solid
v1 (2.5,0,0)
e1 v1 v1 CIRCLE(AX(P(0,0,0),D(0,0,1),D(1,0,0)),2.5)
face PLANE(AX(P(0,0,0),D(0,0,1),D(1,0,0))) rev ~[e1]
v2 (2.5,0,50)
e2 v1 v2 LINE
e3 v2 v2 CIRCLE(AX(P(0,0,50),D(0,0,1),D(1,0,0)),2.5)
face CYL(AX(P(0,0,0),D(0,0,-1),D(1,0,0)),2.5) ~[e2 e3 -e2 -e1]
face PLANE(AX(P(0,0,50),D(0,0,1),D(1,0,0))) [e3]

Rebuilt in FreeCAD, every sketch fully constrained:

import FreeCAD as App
import Part
import Sketcher

V = App.Vector

doc = App.newDocument("Part")
body = doc.addObject("PartDesign::Body", "Body")

# Sketch on XY plane
sketch1 = doc.addObject("Sketcher::SketchObject", "Sketch")
body.addObject(sketch1)
sketch1.AttachmentSupport = (doc.XY_Plane, [""])
sketch1.MapMode = "FlatFace"
sketch1.addGeometry(Part.Circle(V(0, 0, 0), V(0, 0, 1), 2.5), False)
sketch1.addConstraint(Sketcher.Constraint("Coincident", 0, 3, -1, 1))
sketch1.addConstraint(Sketcher.Constraint("Diameter", 0, 5.0))
pad1 = doc.addObject("PartDesign::Pad", "Pad")
body.addObject(pad1)
pad1.Profile = sketch1
pad1.Length = 50

doc.recompute()
